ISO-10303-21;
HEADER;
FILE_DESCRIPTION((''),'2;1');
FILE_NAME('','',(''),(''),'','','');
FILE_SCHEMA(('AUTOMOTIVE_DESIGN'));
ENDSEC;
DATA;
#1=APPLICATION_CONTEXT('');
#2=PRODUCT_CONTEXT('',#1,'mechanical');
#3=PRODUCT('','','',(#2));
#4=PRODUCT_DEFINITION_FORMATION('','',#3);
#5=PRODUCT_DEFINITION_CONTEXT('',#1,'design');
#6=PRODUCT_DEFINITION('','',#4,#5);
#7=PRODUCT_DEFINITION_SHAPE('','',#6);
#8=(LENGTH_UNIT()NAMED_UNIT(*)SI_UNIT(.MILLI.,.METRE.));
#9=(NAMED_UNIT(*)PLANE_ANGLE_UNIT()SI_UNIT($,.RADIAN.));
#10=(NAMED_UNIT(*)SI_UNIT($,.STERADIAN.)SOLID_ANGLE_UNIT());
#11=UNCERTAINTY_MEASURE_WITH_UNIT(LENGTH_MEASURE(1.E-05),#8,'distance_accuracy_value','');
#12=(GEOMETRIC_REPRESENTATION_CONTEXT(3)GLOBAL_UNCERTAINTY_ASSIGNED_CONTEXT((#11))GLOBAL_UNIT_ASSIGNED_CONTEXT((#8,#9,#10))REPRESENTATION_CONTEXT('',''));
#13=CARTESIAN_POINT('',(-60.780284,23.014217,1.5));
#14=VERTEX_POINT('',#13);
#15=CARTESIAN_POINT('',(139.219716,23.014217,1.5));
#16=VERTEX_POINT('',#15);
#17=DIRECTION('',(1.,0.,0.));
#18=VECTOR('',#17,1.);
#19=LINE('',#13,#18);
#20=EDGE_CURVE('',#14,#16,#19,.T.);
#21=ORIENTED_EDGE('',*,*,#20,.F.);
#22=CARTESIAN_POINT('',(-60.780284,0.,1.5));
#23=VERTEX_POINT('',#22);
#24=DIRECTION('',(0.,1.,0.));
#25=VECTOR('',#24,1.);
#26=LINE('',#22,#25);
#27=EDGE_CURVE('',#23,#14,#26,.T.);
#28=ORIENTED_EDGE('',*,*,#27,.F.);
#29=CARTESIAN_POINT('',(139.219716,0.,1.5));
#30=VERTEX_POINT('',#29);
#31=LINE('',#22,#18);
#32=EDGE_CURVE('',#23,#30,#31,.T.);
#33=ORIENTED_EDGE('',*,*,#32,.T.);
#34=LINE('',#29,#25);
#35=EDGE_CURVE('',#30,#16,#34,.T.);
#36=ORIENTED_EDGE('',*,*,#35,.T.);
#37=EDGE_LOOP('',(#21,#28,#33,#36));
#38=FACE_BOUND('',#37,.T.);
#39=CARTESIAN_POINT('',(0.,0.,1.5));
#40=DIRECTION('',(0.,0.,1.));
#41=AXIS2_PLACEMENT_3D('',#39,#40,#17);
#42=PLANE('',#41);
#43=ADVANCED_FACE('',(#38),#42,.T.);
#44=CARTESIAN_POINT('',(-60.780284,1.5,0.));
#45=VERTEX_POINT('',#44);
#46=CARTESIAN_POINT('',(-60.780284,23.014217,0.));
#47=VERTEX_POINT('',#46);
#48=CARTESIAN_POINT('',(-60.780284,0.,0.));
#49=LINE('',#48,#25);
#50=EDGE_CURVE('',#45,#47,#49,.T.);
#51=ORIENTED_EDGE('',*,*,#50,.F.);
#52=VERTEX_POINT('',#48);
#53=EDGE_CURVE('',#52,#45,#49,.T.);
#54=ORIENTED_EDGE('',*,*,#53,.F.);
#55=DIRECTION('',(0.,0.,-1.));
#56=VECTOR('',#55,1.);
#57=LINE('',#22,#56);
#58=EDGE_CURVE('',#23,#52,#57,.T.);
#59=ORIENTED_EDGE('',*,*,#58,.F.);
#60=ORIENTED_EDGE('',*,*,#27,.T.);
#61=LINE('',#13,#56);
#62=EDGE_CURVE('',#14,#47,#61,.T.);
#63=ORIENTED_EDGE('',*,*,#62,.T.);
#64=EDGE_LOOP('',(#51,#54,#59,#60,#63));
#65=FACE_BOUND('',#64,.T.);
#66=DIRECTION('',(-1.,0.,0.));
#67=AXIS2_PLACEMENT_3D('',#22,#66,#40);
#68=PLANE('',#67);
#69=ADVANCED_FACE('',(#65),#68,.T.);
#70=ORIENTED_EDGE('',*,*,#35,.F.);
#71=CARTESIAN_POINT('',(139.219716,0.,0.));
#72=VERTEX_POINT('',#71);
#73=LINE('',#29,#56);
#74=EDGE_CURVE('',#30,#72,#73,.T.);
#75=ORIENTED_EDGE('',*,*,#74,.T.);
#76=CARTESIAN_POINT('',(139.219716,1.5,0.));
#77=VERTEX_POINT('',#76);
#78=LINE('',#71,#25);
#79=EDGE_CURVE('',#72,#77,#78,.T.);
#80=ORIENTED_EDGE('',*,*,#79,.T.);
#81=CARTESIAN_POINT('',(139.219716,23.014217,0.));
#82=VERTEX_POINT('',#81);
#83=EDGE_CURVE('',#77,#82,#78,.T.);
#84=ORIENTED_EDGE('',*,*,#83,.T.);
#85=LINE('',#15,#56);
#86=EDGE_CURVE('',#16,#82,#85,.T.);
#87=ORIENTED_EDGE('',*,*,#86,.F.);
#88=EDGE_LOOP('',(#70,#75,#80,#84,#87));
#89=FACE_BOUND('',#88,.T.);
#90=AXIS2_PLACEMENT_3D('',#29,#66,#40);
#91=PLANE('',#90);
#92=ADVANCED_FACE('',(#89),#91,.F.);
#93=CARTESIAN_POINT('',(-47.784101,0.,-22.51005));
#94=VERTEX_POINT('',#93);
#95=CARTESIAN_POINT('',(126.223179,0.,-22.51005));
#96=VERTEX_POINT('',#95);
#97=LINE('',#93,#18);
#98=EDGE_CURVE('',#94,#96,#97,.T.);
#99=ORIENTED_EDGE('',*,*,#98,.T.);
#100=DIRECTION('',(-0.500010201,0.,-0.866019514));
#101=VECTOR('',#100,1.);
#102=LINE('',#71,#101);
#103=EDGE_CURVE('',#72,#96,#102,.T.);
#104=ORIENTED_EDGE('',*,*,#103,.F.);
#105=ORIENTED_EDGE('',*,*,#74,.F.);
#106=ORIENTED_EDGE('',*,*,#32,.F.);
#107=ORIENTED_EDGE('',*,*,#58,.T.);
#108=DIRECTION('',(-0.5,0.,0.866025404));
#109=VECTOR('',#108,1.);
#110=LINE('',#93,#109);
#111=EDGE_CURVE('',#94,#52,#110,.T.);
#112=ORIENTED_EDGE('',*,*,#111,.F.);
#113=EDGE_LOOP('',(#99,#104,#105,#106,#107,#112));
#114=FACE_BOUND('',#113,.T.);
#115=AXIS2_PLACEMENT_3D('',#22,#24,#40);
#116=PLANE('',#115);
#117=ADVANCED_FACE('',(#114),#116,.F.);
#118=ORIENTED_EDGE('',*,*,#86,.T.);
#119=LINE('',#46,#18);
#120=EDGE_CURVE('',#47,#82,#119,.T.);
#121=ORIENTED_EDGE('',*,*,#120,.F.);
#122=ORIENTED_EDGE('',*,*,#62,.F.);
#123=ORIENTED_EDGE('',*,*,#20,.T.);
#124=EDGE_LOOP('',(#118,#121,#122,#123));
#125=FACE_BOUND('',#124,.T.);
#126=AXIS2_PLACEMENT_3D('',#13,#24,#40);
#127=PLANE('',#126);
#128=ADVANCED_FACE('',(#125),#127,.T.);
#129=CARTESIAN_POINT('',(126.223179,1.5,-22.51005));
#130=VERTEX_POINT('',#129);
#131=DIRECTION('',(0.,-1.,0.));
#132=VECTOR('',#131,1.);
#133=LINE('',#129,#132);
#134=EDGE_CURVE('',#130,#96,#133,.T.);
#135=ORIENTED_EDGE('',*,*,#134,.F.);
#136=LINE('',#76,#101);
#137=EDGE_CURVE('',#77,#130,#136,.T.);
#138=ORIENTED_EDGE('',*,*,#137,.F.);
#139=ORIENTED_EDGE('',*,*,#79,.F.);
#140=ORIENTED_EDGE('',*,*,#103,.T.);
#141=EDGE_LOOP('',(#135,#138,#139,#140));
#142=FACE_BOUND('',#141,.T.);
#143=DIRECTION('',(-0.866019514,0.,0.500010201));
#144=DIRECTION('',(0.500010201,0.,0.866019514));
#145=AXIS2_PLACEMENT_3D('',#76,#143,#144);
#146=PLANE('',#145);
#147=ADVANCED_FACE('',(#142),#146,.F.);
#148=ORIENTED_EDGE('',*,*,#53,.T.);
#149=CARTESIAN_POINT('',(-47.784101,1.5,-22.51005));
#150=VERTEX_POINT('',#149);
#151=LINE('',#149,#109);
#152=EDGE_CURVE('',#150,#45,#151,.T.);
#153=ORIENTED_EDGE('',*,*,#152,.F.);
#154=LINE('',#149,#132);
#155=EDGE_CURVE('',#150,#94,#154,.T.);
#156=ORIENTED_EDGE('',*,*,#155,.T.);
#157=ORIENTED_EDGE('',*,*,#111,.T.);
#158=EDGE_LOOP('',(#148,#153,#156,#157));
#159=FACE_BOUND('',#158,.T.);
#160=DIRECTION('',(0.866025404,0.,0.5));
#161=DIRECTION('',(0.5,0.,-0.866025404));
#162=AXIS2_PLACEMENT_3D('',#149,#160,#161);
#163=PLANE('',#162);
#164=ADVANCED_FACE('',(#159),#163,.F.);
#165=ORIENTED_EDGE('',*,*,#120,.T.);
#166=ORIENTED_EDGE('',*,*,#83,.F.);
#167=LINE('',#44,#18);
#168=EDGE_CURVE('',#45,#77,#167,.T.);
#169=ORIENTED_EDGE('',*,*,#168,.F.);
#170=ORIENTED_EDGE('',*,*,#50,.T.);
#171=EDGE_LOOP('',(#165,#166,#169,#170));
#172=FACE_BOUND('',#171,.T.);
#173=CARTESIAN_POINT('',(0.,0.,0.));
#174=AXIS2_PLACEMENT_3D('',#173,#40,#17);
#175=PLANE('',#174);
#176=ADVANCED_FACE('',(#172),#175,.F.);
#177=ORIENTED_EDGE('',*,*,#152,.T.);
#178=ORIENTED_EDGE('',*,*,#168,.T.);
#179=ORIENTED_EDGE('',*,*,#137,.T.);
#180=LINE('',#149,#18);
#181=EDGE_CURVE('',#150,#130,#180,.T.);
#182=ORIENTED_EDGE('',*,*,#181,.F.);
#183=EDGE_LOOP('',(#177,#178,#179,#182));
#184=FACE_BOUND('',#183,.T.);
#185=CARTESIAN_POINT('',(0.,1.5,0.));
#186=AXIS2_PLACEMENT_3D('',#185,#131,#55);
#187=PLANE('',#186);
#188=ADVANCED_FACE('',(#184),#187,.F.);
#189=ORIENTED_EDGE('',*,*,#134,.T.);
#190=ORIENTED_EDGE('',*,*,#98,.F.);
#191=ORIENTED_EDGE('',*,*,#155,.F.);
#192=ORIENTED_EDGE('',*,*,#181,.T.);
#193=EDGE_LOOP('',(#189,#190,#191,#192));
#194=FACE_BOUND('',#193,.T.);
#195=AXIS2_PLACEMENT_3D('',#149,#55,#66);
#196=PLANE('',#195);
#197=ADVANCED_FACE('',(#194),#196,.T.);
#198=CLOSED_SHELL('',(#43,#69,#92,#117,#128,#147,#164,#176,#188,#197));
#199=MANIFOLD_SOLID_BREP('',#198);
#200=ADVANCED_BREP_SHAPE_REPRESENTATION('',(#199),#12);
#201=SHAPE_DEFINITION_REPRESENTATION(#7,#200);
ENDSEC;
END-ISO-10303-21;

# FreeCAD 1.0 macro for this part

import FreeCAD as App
import Part
import Sketcher
Q = App.Units.Quantity


def add_polygon(sketch, points):
    """Adds a closed chain of lines whose ends are joined by coincident constraints."""
    first, n = sketch.GeometryCount, len(points)
    for a, b in zip(points, points[1:] + points[:1]):
        sketch.addGeometry(Part.LineSegment(App.Vector(*a, 0), App.Vector(*b, 0)), False)
    for i in range(n):
        sketch.addConstraint(Sketcher.Constraint("Coincident", first + i, 2, first + (i + 1) % n, 1))

doc = App.newDocument("Part")
body = doc.addObject("PartDesign::Body", "Body")

sketch1 = doc.addObject("Sketcher::SketchObject", "Sketch")
body.addObject(sketch1)
sketch1.AttachmentSupport = (doc.XY_Plane, [""])
sketch1.MapMode = "FlatFace"
add_polygon(sketch1, [(-61, 23), (-61, 0), (139, 0), (139, 23)])
sketch1.addConstraint(Sketcher.Constraint("Vertical", 0))
sketch1.addConstraint(Sketcher.Constraint("Horizontal", 1))
sketch1.addConstraint(Sketcher.Constraint("Vertical", 2))
sketch1.addConstraint(Sketcher.Constraint("Horizontal", 3))
sketch1.addConstraint(Sketcher.Constraint("PointOnObject", 0, 2, -1))
sketch1.addConstraint(Sketcher.Constraint("DistanceX", 1, 1, 1, 2, 200.0))
sketch1.addConstraint(Sketcher.Constraint("DistanceY", 0, 2, 0, 1, 23.014217))
sketch1.addConstraint(Sketcher.Constraint("DistanceX", 0, 2, -1, 1, 60.780284))
pad1 = doc.addObject("PartDesign::Pad", "Pad")
body.addObject(pad1)
pad1.Profile = sketch1
pad1.Length = 1.5

sketch2 = doc.addObject("Sketcher::SketchObject", "Sketch001")
body.addObject(sketch2)
sketch2.AttachmentSupport = (doc.XZ_Plane, [""])
sketch2.MapMode = "FlatFace"
add_polygon(sketch2, [(126, -23), (-48, -23), (-61, 0), (139, 0)])
sketch2.addConstraint(Sketcher.Constraint("Horizontal", 0))
sketch2.addConstraint(Sketcher.Constraint("Horizontal", 2))
sketch2.addConstraint(Sketcher.Constraint("PointOnObject", 1, 2, -1))
sketch2.addConstraint(Sketcher.Constraint("DistanceX", 2, 1, 2, 2, 200.0))
sketch2.addConstraint(Sketcher.Constraint("Angle", 1, Q("120 deg")))
sketch2.addConstraint(Sketcher.Constraint("DistanceX", 0, 2, 0, 1, 174.00728))
sketch2.addConstraint(Sketcher.Constraint("DistanceX", 0, 2, -1, 1, 47.784101))
sketch2.addConstraint(Sketcher.Constraint("DistanceY", 0, 2, -1, 1, 22.51005))
pad2 = doc.addObject("PartDesign::Pad", "Pad001")
body.addObject(pad2)
pad2.Profile = sketch2
pad2.Length = 1.5
pad2.Reversed = True

doc.recompute()
